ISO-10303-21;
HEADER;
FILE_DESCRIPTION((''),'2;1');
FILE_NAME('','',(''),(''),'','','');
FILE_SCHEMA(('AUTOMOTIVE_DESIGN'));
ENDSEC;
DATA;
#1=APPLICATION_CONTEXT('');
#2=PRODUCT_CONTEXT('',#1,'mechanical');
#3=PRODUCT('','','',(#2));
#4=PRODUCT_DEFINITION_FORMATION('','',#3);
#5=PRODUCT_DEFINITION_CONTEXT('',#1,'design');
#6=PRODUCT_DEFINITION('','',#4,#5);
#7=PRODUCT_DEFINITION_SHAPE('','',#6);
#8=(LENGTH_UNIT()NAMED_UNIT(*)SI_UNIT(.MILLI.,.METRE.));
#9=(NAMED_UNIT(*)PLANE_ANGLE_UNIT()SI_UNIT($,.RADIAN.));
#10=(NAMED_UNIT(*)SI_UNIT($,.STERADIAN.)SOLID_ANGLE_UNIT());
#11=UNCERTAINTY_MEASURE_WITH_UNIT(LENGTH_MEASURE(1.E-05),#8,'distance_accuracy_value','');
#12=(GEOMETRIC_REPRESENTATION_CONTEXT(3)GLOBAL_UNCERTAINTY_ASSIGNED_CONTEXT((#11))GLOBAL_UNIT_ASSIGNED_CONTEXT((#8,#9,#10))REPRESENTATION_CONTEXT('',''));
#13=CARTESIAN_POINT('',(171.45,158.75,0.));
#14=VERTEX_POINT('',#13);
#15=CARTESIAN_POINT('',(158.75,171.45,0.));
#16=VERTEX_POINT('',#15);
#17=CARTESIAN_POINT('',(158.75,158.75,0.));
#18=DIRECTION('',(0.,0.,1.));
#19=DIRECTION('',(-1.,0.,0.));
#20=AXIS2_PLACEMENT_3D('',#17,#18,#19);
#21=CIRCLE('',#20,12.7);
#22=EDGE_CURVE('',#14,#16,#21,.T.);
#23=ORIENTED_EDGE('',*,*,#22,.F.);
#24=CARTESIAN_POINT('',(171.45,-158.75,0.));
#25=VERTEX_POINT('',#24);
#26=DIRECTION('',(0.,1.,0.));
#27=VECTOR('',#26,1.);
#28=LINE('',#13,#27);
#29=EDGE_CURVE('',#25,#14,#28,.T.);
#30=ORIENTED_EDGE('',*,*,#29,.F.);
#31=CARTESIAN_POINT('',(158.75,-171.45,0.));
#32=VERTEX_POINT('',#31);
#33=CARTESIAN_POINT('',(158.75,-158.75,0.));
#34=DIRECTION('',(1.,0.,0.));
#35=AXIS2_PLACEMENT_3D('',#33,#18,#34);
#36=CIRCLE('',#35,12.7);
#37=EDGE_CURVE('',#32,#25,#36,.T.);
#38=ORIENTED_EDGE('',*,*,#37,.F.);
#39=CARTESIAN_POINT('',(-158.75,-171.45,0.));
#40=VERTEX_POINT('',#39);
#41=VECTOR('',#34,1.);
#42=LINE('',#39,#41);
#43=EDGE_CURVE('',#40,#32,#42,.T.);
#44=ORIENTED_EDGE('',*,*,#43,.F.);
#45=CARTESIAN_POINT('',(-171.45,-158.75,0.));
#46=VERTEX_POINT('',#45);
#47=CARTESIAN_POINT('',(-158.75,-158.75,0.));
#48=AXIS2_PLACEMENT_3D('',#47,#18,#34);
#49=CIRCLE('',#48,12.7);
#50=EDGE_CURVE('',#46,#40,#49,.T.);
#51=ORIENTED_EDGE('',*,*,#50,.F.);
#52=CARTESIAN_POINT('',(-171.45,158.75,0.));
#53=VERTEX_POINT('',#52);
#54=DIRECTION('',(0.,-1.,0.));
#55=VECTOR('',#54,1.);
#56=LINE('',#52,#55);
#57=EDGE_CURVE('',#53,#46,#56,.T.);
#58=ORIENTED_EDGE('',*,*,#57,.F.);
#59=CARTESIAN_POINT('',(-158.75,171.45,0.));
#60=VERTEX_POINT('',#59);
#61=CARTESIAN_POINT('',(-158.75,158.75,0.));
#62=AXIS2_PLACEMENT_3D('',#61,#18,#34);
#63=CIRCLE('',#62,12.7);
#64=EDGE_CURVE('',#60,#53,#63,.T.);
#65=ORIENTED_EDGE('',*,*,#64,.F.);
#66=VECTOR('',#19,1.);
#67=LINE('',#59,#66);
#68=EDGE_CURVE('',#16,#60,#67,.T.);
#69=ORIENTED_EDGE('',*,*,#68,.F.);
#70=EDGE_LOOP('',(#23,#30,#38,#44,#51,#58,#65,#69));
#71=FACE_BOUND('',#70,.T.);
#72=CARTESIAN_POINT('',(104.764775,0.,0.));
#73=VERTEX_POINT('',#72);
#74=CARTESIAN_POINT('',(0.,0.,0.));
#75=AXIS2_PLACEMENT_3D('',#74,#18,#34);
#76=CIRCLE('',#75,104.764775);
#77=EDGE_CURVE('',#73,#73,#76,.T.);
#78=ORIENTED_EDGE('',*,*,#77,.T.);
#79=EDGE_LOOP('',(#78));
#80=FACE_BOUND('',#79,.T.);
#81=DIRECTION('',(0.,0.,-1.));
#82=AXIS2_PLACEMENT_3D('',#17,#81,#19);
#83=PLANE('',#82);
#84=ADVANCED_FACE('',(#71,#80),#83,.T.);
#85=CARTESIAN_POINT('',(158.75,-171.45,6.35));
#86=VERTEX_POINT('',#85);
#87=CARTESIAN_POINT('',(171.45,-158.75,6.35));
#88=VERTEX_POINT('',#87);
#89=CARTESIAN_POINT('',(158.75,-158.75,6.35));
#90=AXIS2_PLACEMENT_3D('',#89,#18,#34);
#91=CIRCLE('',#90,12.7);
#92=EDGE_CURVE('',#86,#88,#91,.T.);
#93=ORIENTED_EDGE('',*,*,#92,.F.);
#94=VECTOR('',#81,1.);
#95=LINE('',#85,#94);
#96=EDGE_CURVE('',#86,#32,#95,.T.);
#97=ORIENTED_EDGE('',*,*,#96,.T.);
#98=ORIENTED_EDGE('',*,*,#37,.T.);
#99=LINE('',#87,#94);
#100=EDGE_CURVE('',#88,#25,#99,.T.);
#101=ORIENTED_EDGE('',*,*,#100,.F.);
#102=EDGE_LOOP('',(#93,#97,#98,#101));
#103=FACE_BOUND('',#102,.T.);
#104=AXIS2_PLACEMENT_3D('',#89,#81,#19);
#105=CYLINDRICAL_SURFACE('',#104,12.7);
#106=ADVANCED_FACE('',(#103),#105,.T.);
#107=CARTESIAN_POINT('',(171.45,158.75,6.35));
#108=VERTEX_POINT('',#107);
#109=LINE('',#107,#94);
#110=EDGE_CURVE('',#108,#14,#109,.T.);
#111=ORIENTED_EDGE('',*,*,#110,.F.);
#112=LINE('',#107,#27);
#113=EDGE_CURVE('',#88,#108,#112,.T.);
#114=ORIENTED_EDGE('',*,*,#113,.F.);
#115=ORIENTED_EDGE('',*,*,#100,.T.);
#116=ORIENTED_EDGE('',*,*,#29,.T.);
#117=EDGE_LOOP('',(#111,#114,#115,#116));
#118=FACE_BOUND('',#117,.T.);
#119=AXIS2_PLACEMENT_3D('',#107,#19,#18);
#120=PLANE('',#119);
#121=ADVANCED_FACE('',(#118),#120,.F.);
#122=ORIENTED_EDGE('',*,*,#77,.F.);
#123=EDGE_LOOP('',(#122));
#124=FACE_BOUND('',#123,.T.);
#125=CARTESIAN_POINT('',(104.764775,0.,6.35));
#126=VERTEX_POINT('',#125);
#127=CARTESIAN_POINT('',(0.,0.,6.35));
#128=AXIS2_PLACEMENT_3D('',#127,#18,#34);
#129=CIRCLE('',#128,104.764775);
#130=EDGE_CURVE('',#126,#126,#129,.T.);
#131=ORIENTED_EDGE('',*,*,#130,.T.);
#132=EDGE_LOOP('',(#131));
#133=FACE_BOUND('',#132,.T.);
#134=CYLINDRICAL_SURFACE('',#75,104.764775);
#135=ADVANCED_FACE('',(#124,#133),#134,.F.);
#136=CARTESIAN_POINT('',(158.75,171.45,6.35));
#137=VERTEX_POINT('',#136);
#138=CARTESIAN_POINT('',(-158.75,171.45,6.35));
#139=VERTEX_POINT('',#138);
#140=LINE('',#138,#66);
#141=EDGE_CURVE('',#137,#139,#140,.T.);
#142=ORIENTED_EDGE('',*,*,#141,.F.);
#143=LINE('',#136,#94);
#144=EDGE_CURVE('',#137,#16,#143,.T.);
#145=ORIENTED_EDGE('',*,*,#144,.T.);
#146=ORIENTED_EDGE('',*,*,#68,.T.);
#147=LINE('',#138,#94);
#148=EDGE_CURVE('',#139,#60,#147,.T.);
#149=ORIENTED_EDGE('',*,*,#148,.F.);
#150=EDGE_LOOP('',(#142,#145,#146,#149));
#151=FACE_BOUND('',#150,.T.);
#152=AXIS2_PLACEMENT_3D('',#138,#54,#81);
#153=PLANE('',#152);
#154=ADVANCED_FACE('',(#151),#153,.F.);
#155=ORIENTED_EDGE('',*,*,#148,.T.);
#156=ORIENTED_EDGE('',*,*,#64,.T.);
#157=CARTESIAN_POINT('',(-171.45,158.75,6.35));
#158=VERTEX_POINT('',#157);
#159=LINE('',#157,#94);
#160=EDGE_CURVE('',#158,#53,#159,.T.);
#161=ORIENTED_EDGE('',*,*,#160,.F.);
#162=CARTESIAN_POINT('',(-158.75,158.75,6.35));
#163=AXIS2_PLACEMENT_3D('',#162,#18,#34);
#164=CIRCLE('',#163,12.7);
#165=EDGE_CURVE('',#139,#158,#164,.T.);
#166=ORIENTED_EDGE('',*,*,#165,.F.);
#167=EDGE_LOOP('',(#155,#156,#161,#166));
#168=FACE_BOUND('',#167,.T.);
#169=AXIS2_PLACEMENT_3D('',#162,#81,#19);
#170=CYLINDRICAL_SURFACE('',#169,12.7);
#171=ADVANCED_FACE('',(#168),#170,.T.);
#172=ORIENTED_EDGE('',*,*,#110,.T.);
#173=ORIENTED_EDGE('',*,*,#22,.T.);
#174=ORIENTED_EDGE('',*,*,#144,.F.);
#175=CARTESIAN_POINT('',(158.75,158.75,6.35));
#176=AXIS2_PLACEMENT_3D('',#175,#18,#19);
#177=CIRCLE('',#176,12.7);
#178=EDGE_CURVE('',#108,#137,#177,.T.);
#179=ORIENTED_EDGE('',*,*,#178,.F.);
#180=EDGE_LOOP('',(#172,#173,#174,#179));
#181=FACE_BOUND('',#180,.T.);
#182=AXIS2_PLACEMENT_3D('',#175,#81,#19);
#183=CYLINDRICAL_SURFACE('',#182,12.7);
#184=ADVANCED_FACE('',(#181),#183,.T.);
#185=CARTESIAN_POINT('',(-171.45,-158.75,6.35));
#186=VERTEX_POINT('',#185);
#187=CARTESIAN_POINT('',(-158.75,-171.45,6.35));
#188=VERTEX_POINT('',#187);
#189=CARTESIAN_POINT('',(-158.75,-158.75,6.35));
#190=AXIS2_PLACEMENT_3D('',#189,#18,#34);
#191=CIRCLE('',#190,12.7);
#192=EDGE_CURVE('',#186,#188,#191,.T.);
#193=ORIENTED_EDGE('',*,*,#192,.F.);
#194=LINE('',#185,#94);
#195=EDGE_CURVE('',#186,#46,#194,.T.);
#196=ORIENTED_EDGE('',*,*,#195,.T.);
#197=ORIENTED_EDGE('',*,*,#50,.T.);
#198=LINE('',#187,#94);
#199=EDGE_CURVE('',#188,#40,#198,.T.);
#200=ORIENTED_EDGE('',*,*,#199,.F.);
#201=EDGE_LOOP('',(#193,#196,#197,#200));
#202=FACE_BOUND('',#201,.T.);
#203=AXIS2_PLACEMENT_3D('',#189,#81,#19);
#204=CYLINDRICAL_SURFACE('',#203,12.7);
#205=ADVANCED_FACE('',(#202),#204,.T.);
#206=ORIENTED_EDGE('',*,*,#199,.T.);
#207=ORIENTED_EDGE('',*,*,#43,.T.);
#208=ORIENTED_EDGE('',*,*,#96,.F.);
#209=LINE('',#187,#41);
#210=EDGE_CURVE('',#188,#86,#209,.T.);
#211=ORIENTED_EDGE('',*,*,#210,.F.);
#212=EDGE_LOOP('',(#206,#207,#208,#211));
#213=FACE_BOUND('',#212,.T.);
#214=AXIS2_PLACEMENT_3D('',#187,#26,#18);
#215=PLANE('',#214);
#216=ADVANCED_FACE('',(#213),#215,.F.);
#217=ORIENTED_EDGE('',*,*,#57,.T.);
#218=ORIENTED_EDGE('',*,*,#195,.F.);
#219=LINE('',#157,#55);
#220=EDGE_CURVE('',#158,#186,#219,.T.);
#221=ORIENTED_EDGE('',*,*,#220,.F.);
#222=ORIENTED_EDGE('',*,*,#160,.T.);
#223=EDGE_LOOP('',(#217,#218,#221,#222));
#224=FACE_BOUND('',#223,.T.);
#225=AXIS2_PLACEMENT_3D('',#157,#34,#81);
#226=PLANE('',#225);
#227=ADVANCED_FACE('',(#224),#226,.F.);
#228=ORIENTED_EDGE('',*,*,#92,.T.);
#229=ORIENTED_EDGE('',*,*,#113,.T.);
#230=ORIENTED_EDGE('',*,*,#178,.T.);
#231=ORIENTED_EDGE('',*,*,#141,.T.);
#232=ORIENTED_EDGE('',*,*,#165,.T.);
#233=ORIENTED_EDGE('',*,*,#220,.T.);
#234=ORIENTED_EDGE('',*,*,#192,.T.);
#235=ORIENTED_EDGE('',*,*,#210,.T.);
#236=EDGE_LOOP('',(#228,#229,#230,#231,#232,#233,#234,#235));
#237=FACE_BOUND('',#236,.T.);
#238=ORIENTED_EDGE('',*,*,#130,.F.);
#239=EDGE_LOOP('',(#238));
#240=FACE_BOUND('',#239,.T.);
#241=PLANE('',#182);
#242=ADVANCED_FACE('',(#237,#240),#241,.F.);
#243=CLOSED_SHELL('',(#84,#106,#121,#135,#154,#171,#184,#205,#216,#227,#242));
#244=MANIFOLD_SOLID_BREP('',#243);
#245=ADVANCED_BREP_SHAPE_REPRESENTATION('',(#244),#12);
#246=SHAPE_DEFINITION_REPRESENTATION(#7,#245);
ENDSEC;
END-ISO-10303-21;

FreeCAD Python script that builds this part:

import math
import FreeCAD as App
import Part
import Sketcher
from FreeCAD import Vector
Q = App.Units.Quantity

doc = App.newDocument("Part")
body = doc.addObject("PartDesign::Body", "Body")

# Sketch on XY plane
sketch1 = doc.addObject("Sketcher::SketchObject", "Sketch")
body.addObject(sketch1)
sketch1.AttachmentSupport = (doc.XY_Plane, [""])
sketch1.MapMode = "FlatFace"
sketch1.addGeometry(Part.LineSegment(Vector(159, 171, 0), Vector(-159, 171, 0)), False)
sketch1.addGeometry(Part.ArcOfCircle(Part.Circle(Vector(-159, 159, 0), Vector(0, 0, 1), 13), math.radians(90), math.radians(180)), False)
sketch1.addGeometry(Part.LineSegment(Vector(-171, 159, 0), Vector(-171, -159, 0)), False)
sketch1.addGeometry(Part.ArcOfCircle(Part.Circle(Vector(-159, -159, 0), Vector(0, 0, 1), 13), math.radians(180), math.radians(270)), False)
sketch1.addGeometry(Part.LineSegment(Vector(-159, -171, 0), Vector(159, -171, 0)), False)
sketch1.addGeometry(Part.ArcOfCircle(Part.Circle(Vector(159, -159, 0), Vector(0, 0, 1), 13), math.radians(-90), math.radians(0)), False)
sketch1.addGeometry(Part.LineSegment(Vector(171, -159, 0), Vector(171, 159, 0)), False)
sketch1.addGeometry(Part.ArcOfCircle(Part.Circle(Vector(159, 159, 0), Vector(0, 0, 1), 13), math.radians(0), math.radians(90)), False)
sketch1.addConstraint(Sketcher.Constraint("Tangent", 0, 2, 1, 1))
sketch1.addConstraint(Sketcher.Constraint("Tangent", 1, 2, 2, 1))
sketch1.addConstraint(Sketcher.Constraint("Tangent", 2, 2, 3, 1))
sketch1.addConstraint(Sketcher.Constraint("Tangent", 3, 2, 4, 1))
sketch1.addConstraint(Sketcher.Constraint("Tangent", 4, 2, 5, 1))
sketch1.addConstraint(Sketcher.Constraint("Tangent", 5, 2, 6, 1))
sketch1.addConstraint(Sketcher.Constraint("Tangent", 6, 2, 7, 1))
sketch1.addConstraint(Sketcher.Constraint("Tangent", 7, 2, 0, 1))
sketch1.addConstraint(Sketcher.Constraint("Horizontal", 0))
sketch1.addConstraint(Sketcher.Constraint("Vertical", 2))
sketch1.addConstraint(Sketcher.Constraint("Horizontal", 4))
sketch1.addConstraint(Sketcher.Constraint("Vertical", 6))
sketch1.addConstraint(Sketcher.Constraint("Equal", 1, 3))
sketch1.addConstraint(Sketcher.Constraint("Equal", 3, 5))
sketch1.addConstraint(Sketcher.Constraint("Equal", 5, 7))
sketch1.addConstraint(Sketcher.Constraint("Symmetric", 1, 3, 5, 3, -1, 1))
sketch1.addConstraint(Sketcher.Constraint("Equal", 4, 2))
sketch1.addConstraint(Sketcher.Constraint("Radius", 1, Q("0.5 in")))
sketch1.addConstraint(Sketcher.Constraint("DistanceX", 0, 2, 0, 1, Q("12.5 in")))
pad1 = doc.addObject("PartDesign::Pad", "Pad")
body.addObject(pad1)
pad1.Profile = sketch1
pad1.Length = Q("0.25 in")

# Sketch on XY plane
sketch2 = doc.addObject("Sketcher::SketchObject", "Sketch001")
body.addObject(sketch2)
sketch2.AttachmentSupport = (doc.XY_Plane, [""])
sketch2.MapMode = "FlatFace"
sketch2.AttachmentOffset = App.Placement(Vector(0, 0, 0.25 * 25.4), App.Rotation())
sketch2.addGeometry(Part.Circle(Vector(0, 0, 0), Vector(0, 0, 1), 105), False)
sketch2.addConstraint(Sketcher.Constraint("Coincident", 0, 3, -1, 1))
sketch2.addConstraint(Sketcher.Constraint("Diameter", 0, 209.529549))
pocket1 = doc.addObject("PartDesign::Pocket", "Pocket")
body.addObject(pocket1)
pocket1.Profile = sketch2
pocket1.Type = "ThroughAll"

doc.recompute()
